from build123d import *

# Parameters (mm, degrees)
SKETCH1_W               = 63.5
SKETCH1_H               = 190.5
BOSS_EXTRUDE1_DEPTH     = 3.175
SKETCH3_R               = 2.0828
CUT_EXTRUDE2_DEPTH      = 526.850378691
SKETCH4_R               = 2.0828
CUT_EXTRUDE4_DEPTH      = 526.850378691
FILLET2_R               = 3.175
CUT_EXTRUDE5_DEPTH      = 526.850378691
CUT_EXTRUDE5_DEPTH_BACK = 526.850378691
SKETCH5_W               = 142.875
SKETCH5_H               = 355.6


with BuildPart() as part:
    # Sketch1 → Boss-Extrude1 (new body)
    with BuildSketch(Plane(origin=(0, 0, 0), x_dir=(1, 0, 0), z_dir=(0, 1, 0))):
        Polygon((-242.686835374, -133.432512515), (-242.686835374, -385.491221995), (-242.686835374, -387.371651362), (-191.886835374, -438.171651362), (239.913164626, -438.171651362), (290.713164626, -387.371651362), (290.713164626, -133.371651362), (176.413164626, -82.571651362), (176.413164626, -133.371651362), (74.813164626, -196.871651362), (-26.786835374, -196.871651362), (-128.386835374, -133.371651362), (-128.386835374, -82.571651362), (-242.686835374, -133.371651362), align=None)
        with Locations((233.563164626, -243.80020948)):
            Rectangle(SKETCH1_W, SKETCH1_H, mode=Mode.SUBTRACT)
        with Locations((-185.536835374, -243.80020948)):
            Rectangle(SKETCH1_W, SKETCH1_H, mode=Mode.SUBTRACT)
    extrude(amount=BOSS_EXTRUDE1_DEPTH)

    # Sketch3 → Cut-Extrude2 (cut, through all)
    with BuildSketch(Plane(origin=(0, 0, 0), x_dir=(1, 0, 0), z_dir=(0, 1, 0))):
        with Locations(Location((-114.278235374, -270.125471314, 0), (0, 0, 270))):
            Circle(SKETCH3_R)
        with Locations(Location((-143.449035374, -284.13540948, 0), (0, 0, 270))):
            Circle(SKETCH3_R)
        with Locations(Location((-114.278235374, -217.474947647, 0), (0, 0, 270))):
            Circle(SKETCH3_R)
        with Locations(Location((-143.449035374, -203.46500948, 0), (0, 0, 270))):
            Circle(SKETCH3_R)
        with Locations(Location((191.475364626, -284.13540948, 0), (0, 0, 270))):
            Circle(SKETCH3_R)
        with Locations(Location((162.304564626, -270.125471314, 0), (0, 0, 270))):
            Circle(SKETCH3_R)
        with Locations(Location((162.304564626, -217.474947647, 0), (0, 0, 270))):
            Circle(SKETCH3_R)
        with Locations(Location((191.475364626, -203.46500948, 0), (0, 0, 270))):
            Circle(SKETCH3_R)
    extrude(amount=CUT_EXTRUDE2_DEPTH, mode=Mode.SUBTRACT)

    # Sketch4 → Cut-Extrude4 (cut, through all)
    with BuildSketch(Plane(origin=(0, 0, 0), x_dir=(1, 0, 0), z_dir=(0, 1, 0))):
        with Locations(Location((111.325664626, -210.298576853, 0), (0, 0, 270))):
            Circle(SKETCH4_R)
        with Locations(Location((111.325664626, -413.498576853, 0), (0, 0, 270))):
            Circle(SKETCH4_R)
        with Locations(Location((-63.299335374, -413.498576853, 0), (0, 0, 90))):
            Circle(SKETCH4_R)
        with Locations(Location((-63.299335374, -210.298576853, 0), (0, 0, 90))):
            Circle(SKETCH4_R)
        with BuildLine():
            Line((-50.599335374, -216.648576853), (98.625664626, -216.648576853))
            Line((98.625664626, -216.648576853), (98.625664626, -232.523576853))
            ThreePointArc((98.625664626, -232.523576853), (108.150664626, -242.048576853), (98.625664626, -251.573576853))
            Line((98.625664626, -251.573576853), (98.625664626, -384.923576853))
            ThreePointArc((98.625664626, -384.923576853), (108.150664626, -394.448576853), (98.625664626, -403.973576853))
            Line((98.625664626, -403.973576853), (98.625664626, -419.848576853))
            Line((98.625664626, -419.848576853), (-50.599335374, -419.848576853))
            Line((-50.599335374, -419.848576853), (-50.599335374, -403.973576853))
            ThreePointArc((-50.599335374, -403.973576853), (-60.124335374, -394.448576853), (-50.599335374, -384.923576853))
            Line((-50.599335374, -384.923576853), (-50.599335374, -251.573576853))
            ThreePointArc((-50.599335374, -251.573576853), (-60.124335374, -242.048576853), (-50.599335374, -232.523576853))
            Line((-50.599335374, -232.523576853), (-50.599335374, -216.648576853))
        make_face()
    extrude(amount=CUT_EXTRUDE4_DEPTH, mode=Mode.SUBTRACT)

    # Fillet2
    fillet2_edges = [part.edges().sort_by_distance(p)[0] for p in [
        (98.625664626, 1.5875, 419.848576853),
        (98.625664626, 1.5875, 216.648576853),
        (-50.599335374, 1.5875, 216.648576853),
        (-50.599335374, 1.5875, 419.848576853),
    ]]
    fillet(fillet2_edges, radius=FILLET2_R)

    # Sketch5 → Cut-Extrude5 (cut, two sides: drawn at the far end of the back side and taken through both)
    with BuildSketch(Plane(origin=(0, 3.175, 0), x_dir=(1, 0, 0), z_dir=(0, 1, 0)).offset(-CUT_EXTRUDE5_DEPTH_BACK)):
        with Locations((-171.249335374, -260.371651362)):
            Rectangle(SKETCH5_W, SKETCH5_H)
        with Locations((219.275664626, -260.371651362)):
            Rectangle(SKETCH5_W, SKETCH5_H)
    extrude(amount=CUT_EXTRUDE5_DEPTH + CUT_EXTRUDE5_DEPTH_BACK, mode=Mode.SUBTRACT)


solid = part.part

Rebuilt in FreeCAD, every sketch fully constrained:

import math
import FreeCAD as App
import Part
import Sketcher
from FreeCAD import Vector
Q = App.Units.Quantity


def edges_at(feature, points):
    """Names of the edges that pass closest to the given points."""
    edges = feature.Shape.Edges
    near = lambda p: min(range(len(edges)), key=lambda i: edges[i].distToShape(Part.Vertex(*p))[0])
    return sorted({f"Edge{near(p) + 1}" for p in points})

doc = App.newDocument("Part")
params = doc.addObject("Spreadsheet::Sheet", "Params")
for row, (alias, value) in enumerate([
    ("sketch1_width", "17 in"),
    ("sketch1_width2", "4 in"),
    ("sketch1_height", "10 in"),
    ("sketch1_height2", "2 in"),
    ("sketch1_width3", "2.5 in"),
    ("pad1_length", "0.125 in"),
    ("sketch2_diameter", "0.164 in"),
    ("sketch3_diameter", "0.164 in"),
    ("sketch3_radius", "0.375 in"),
    ("sketch3_width", "5.875 in"),
    ("fillet_radius", "0.125 in"),
    ("sketch4_height", "14 in"),
    ("sketch4_width", "5.625 in"),
], start=1):
    params.set(f"A{row}", alias)
    params.set(f"B{row}", "=" + value)
    params.setAlias(f"B{row}", alias)

body = doc.addObject("PartDesign::Body", "Body")

# Sketch on XZ plane
sketch1 = body.newObject("Sketcher::SketchObject", "Sketch")
sketch1.AttachmentSupport = (doc.getObject("XZ_Plane"), [""])
sketch1.MapMode = "FlatFace"
sketch1.addGeometry(Part.LineSegment(Vector(-243, 387, 0), Vector(-192, 438, 0)), False)
sketch1.addGeometry(Part.LineSegment(Vector(-192, 438, 0), Vector(240, 438, 0)), False)
sketch1.addGeometry(Part.LineSegment(Vector(240, 438, 0), Vector(291, 387, 0)), False)
sketch1.addGeometry(Part.LineSegment(Vector(291, 387, 0), Vector(291, 133, 0)), False)
sketch1.addGeometry(Part.LineSegment(Vector(291, 133, 0), Vector(176, 83, 0)), False)
sketch1.addGeometry(Part.LineSegment(Vector(176, 83, 0), Vector(176, 133, 0)), False)
sketch1.addGeometry(Part.LineSegment(Vector(176, 133, 0), Vector(75, 197, 0)), False)
sketch1.addGeometry(Part.LineSegment(Vector(75, 197, 0), Vector(-27, 197, 0)), False)
sketch1.addGeometry(Part.LineSegment(Vector(-27, 197, 0), Vector(-128, 133, 0)), False)
sketch1.addGeometry(Part.LineSegment(Vector(-128, 133, 0), Vector(-128, 83, 0)), False)
sketch1.addGeometry(Part.LineSegment(Vector(-128, 83, 0), Vector(-243, 133, 0)), False)
sketch1.addGeometry(Part.LineSegment(Vector(-243, 133, 0), Vector(-243, 387, 0)), False)
sketch1.addGeometry(Part.LineSegment(Vector(-154, 339, 0), Vector(-217, 339, 0)), False)
sketch1.addGeometry(Part.LineSegment(Vector(-217, 339, 0), Vector(-217, 149, 0)), False)
sketch1.addGeometry(Part.LineSegment(Vector(-217, 149, 0), Vector(-154, 149, 0)), False)
sketch1.addGeometry(Part.LineSegment(Vector(-154, 149, 0), Vector(-154, 339, 0)), False)
sketch1.addGeometry(Part.LineSegment(Vector(265, 339, 0), Vector(202, 339, 0)), False)
sketch1.addGeometry(Part.LineSegment(Vector(202, 339, 0), Vector(202, 149, 0)), False)
sketch1.addGeometry(Part.LineSegment(Vector(202, 149, 0), Vector(265, 149, 0)), False)
sketch1.addGeometry(Part.LineSegment(Vector(265, 149, 0), Vector(265, 339, 0)), False)
sketch1.addConstraint(Sketcher.Constraint("Coincident", 0, 2, 1, 1))
sketch1.addConstraint(Sketcher.Constraint("Coincident", 1, 2, 2, 1))
sketch1.addConstraint(Sketcher.Constraint("Coincident", 2, 2, 3, 1))
sketch1.addConstraint(Sketcher.Constraint("Coincident", 3, 2, 4, 1))
sketch1.addConstraint(Sketcher.Constraint("Coincident", 4, 2, 5, 1))
sketch1.addConstraint(Sketcher.Constraint("Coincident", 5, 2, 6, 1))
sketch1.addConstraint(Sketcher.Constraint("Coincident", 6, 2, 7, 1))
sketch1.addConstraint(Sketcher.Constraint("Coincident", 7, 2, 8, 1))
sketch1.addConstraint(Sketcher.Constraint("Coincident", 8, 2, 9, 1))
sketch1.addConstraint(Sketcher.Constraint("Coincident", 9, 2, 10, 1))
sketch1.addConstraint(Sketcher.Constraint("Coincident", 10, 2, 11, 1))
sketch1.addConstraint(Sketcher.Constraint("Coincident", 11, 2, 0, 1))
sketch1.addConstraint(Sketcher.Constraint("Coincident", 12, 2, 13, 1))
sketch1.addConstraint(Sketcher.Constraint("Coincident", 13, 2, 14, 1))
sketch1.addConstraint(Sketcher.Constraint("Coincident", 14, 2, 15, 1))
sketch1.addConstraint(Sketcher.Constraint("Coincident", 15, 2, 12, 1))
sketch1.addConstraint(Sketcher.Constraint("Coincident", 16, 2, 17, 1))
sketch1.addConstraint(Sketcher.Constraint("Coincident", 17, 2, 18, 1))
sketch1.addConstraint(Sketcher.Constraint("Coincident", 18, 2, 19, 1))
sketch1.addConstraint(Sketcher.Constraint("Coincident", 19, 2, 16, 1))
sketch1.addConstraint(Sketcher.Constraint("Horizontal", 1))
sketch1.addConstraint(Sketcher.Constraint("Vertical", 3))
sketch1.addConstraint(Sketcher.Constraint("Vertical", 5))
sketch1.addConstraint(Sketcher.Constraint("Horizontal", 7))
sketch1.addConstraint(Sketcher.Constraint("Vertical", 9))
sketch1.addConstraint(Sketcher.Constraint("Vertical", 11))
sketch1.addConstraint(Sketcher.Constraint("Horizontal", 12))
sketch1.addConstraint(Sketcher.Constraint("Vertical", 13))
sketch1.addConstraint(Sketcher.Constraint("Horizontal", 14))
sketch1.addConstraint(Sketcher.Constraint("Vertical", 15))
sketch1.addConstraint(Sketcher.Constraint("Horizontal", 16))
sketch1.addConstraint(Sketcher.Constraint("Vertical", 17))
sketch1.addConstraint(Sketcher.Constraint("Horizontal", 18))
sketch1.addConstraint(Sketcher.Constraint("Vertical", 19))
sketch1.addConstraint(Sketcher.Constraint("Perpendicular", 0, 2))
sketch1.addConstraint(Sketcher.Constraint("Horizontal", 3, 2, 5, 2))
sketch1.addConstraint(Sketcher.Constraint("Horizontal", 5, 2, 8, 2))
sketch1.addConstraint(Sketcher.Constraint("Horizontal", 4, 2, 9, 2))
sketch1.addConstraint(Sketcher.Constraint("Horizontal", 8, 2, 10, 2))
sketch1.addConstraint(Sketcher.Constraint("Horizontal", 2, 2, 11, 2))
sketch1.addConstraint(Sketcher.Constraint("Horizontal", 15, 2, 16, 2))
sketch1.addConstraint(Sketcher.Constraint("Horizontal", 14, 2, 17, 2))
sketch1.addConstraint(Sketcher.Constraint("Equal", 14, 16))
sketch1.addConstraint(Sketcher.Constraint("Equal", 0, 2))
sketch1.addConstraint(Sketcher.Constraint("Equal", 6, 8))
sketch1.addConstraint(Sketcher.Constraint("Equal", 4, 10))
sketch1.addConstraint(Sketcher.Constraint("DistanceX", 1, 1, 1, 2, Q("17 in")))
sketch1.addConstraint(Sketcher.Constraint("DistanceX", 7, 2, 7, 1, Q("4 in")))
sketch1.addConstraint(Sketcher.Constraint("DistanceY", 3, 2, 3, 1, Q("10 in")))
sketch1.addConstraint(Sketcher.Constraint("DistanceY", 5, 1, 5, 2, Q("2 in")))
sketch1.addConstraint(Sketcher.Constraint("DistanceX", 12, 2, 12, 1, Q("2.5 in")))
sketch1.addConstraint(Sketcher.Constraint("DistanceY", 13, 2, 13, 1, Q("7.5 in")))
sketch1.addConstraint(Sketcher.Constraint("DistanceX", 1, 2, 2, 2, Q("2 in")))
sketch1.addConstraint(Sketcher.Constraint("DistanceX", 6, 2, 5, 2, Q("4 in")))
sketch1.addConstraint(Sketcher.Constraint("DistanceX", 11, 2, 12, 2, Q("1 in")))
sketch1.addConstraint(Sketcher.Constraint("DistanceX", 6, 2, 16, 2, Q("5 in")))
sketch1.addConstraint(Sketcher.Constraint("DistanceY", 5, 2, 6, 2, Q("2.5 in")))
sketch1.addConstraint(Sketcher.Constraint("DistanceX", 0, 2, -1, 1, Q("7.5545998 in")))
sketch1.addConstraint(Sketcher.Constraint("DistanceY", -1, 1, 0, 2, Q("438.171651 mm")))
sketch1.addConstraint(Sketcher.Constraint("DistanceY", -1, 1, 12, 2, Q("339.050209 mm")))
sketch1.setExpression("Constraints[46]", "Params.sketch1_width")
sketch1.setExpression("Constraints[47]", "Params.sketch1_width2")
sketch1.setExpression("Constraints[48]", "Params.sketch1_height")
sketch1.setExpression("Constraints[49]", "Params.sketch1_height2")
sketch1.setExpression("Constraints[50]", "Params.sketch1_width3")
pad1 = body.newObject("PartDesign::Pad", "Pad")
pad1.Profile = sketch1
pad1.setExpression("Length", "Params.pad1_length")
pad1.Reversed = True

# Sketch on XZ plane
sketch2 = body.newObject("Sketcher::SketchObject", "Sketch001")
sketch2.AttachmentSupport = (doc.getObject("XZ_Plane"), [""])
sketch2.MapMode = "FlatFace"
sketch2.addGeometry(Part.Circle(Vector(-114.3, 270.1, 0), Vector(0, 0, 1), 2.1), False)
sketch2.addGeometry(Part.Circle(Vector(-143.4, 284.1, 0), Vector(0, 0, 1), 2.1), False)
sketch2.addGeometry(Part.Circle(Vector(-114.3, 217.5, 0), Vector(0, 0, 1), 2.1), False)
sketch2.addGeometry(Part.Circle(Vector(-143.4, 203.5, 0), Vector(0, 0, 1), 2.1), False)
sketch2.addGeometry(Part.Circle(Vector(191.5, 284.1, 0), Vector(0, 0, 1), 2.1), False)
sketch2.addGeometry(Part.Circle(Vector(162.3, 270.1, 0), Vector(0, 0, 1), 2.1), False)
sketch2.addGeometry(Part.Circle(Vector(162.3, 217.5, 0), Vector(0, 0, 1), 2.1), False)
sketch2.addGeometry(Part.Circle(Vector(191.5, 203.5, 0), Vector(0, 0, 1), 2.1), False)
sketch2.addConstraint(Sketcher.Constraint("Equal", 0, 1))
sketch2.addConstraint(Sketcher.Constraint("Equal", 1, 2))
sketch2.addConstraint(Sketcher.Constraint("Equal", 2, 3))
sketch2.addConstraint(Sketcher.Constraint("Equal", 3, 4))
sketch2.addConstraint(Sketcher.Constraint("Equal", 4, 5))
sketch2.addConstraint(Sketcher.Constraint("Equal", 5, 6))
sketch2.addConstraint(Sketcher.Constraint("Equal", 6, 7))
sketch2.addConstraint(Sketcher.Constraint("Horizontal", 1, 3, 4, 3))
sketch2.addConstraint(Sketcher.Constraint("Horizontal", 0, 3, 5, 3))
sketch2.addConstraint(Sketcher.Constraint("Horizontal", 2, 3, 6, 3))
sketch2.addConstraint(Sketcher.Constraint("Horizontal", 3, 3, 7, 3))
sketch2.addConstraint(Sketcher.Constraint("Vertical", 0, 3, 2, 3))
sketch2.addConstraint(Sketcher.Constraint("Vertical", 1, 3, 3, 3))
sketch2.addConstraint(Sketcher.Constraint("Vertical", 5, 3, 6, 3))
sketch2.addConstraint(Sketcher.Constraint("Vertical", 4, 3, 7, 3))
sketch2.addConstraint(Sketcher.Constraint("Diameter", 0, Q("0.164 in")))
sketch2.addConstraint(Sketcher.Constraint("DistanceY", 3, 3, 1, 3, Q("3.176 in")))
sketch2.addConstraint(Sketcher.Constraint("DistanceX", 1, 3, 4, 3, Q("13.186 in")))
sketch2.addConstraint(Sketcher.Constraint("DistanceX", 1, 3, -1, 1, Q("5.6475998 in")))
sketch2.addConstraint(Sketcher.Constraint("DistanceX", 1, 3, 0, 3, Q("29.1708 mm")))
sketch2.addConstraint(Sketcher.Constraint("DistanceX", 5, 3, 4, 3, Q("29.1708 mm")))
sketch2.addConstraint(Sketcher.Constraint("DistanceY", -1, 1, 0, 3, Q("270.125471 mm")))
sketch2.addConstraint(Sketcher.Constraint("DistanceY", -1, 1, 1, 3, Q("284.135409 mm")))
sketch2.addConstraint(Sketcher.Constraint("DistanceY", 2, 3, 1, 3, Q("66.660462 mm")))
sketch2.setExpression("Constraints[15]", "Params.sketch2_diameter")
pocket1 = body.newObject("PartDesign::Pocket", "Pocket")
pocket1.Profile = sketch2
pocket1.Type = "ThroughAll"

# Sketch on XZ plane
sketch3 = body.newObject("Sketcher::SketchObject", "Sketch002")
sketch3.AttachmentSupport = (doc.getObject("XZ_Plane"), [""])
sketch3.MapMode = "FlatFace"
sketch3.addGeometry(Part.Circle(Vector(111.3, 210.3, 0), Vector(0, 0, 1), 2.1), False)
sketch3.addGeometry(Part.Circle(Vector(111.3, 413.5, 0), Vector(0, 0, 1), 2.1), False)
sketch3.addGeometry(Part.Circle(Vector(-63.3, 413.5, 0), Vector(0, 0, 1), 2.1), False)
sketch3.addGeometry(Part.Circle(Vector(-63.3, 210.3, 0), Vector(0, 0, 1), 2.1), False)
sketch3.addGeometry(Part.LineSegment(Vector(98.6, 216.6, 0), Vector(-50.6, 216.6, 0)), False)
sketch3.addGeometry(Part.LineSegment(Vector(-50.6, 216.6, 0), Vector(-50.6, 232.5, 0)), False)
sketch3.addGeometry(Part.ArcOfCircle(Part.Circle(Vector(-50.6, 242, 0), Vector(0, 0, 1), 9.5), math.radians(90), math.radians(270)), False)
sketch3.addGeometry(Part.LineSegment(Vector(-50.6, 251.6, 0), Vector(-50.6, 384.9, 0)), False)
sketch3.addGeometry(Part.ArcOfCircle(Part.Circle(Vector(-50.6, 394.4, 0), Vector(0, 0, 1), 9.5), math.radians(90), math.radians(270)), False)
sketch3.addGeometry(Part.LineSegment(Vector(-50.6, 404, 0), Vector(-50.6, 419.8, 0)), False)
sketch3.addGeometry(Part.LineSegment(Vector(-50.6, 419.8, 0), Vector(98.6, 419.8, 0)), False)
sketch3.addGeometry(Part.LineSegment(Vector(98.6, 419.8, 0), Vector(98.6, 404, 0)), False)
sketch3.addGeometry(Part.ArcOfCircle(Part.Circle(Vector(98.6, 394.4, 0), Vector(0, 0, 1), 9.5), math.radians(-90), math.radians(90)), False)
sketch3.addGeometry(Part.LineSegment(Vector(98.6, 384.9, 0), Vector(98.6, 251.6, 0)), False)
sketch3.addGeometry(Part.ArcOfCircle(Part.Circle(Vector(98.6, 242, 0), Vector(0, 0, 1), 9.5), math.radians(-90), math.radians(90)), False)
sketch3.addGeometry(Part.LineSegment(Vector(98.6, 232.5, 0), Vector(98.6, 216.6, 0)), False)
sketch3.addConstraint(Sketcher.Constraint("Coincident", 4, 2, 5, 1))
sketch3.addConstraint(Sketcher.Constraint("Coincident", 5, 2, 6, 2))
sketch3.addConstraint(Sketcher.Constraint("Coincident", 6, 1, 7, 1))
sketch3.addConstraint(Sketcher.Constraint("Coincident", 7, 2, 8, 2))
sketch3.addConstraint(Sketcher.Constraint("Coincident", 8, 1, 9, 1))
sketch3.addConstraint(Sketcher.Constraint("Coincident", 9, 2, 10, 1))
sketch3.addConstraint(Sketcher.Constraint("Coincident", 10, 2, 11, 1))
sketch3.addConstraint(Sketcher.Constraint("Coincident", 11, 2, 12, 2))
sketch3.addConstraint(Sketcher.Constraint("Coincident", 12, 1, 13, 1))
sketch3.addConstraint(Sketcher.Constraint("Coincident", 13, 2, 14, 2))
sketch3.addConstraint(Sketcher.Constraint("Coincident", 14, 1, 15, 1))
sketch3.addConstraint(Sketcher.Constraint("Coincident", 15, 2, 4, 1))
sketch3.addConstraint(Sketcher.Constraint("Horizontal", 4))
sketch3.addConstraint(Sketcher.Constraint("Vertical", 5))
sketch3.addConstraint(Sketcher.Constraint("Vertical", 7))
sketch3.addConstraint(Sketcher.Constraint("Vertical", 9))
sketch3.addConstraint(Sketcher.Constraint("Horizontal", 10))
sketch3.addConstraint(Sketcher.Constraint("Vertical", 11))
sketch3.addConstraint(Sketcher.Constraint("Vertical", 13))
sketch3.addConstraint(Sketcher.Constraint("Vertical", 15))
sketch3.addConstraint(Sketcher.Constraint("Equal", 0, 1))
sketch3.addConstraint(Sketcher.Constraint("Equal", 1, 2))
sketch3.addConstraint(Sketcher.Constraint("Equal", 2, 3))
sketch3.addConstraint(Sketcher.Constraint("Equal", 6, 8))
sketch3.addConstraint(Sketcher.Constraint("Equal", 8, 12))
sketch3.addConstraint(Sketcher.Constraint("Equal", 12, 14))
sketch3.addConstraint(Sketcher.Constraint("Horizontal", 1, 3, 2, 3))
sketch3.addConstraint(Sketcher.Constraint("Horizontal", 0, 3, 3, 3))
sketch3.addConstraint(Sketcher.Constraint("Horizontal", 8, 3, 12, 3))
sketch3.addConstraint(Sketcher.Constraint("Horizontal", 6, 3, 14, 3))
sketch3.addConstraint(Sketcher.Constraint("Vertical", 0, 3, 1, 3))
sketch3.addConstraint(Sketcher.Constraint("Vertical", 2, 3, 3, 3))
sketch3.addConstraint(Sketcher.Constraint("Vertical", 6, 3, 8, 3))
sketch3.addConstraint(Sketcher.Constraint("Vertical", 12, 3, 14, 3))
sketch3.addConstraint(Sketcher.Constraint("Vertical", 8, 3, 4, 2))
sketch3.addConstraint(Sketcher.Constraint("Vertical", 5, 2, 6, 1))
sketch3.addConstraint(Sketcher.Constraint("Vertical", 7, 2, 8, 1))
sketch3.addConstraint(Sketcher.Constraint("Vertical", 14, 3, 10, 2))
sketch3.addConstraint(Sketcher.Constraint("Vertical", 11, 2, 12, 1))
sketch3.addConstraint(Sketcher.Constraint("Vertical", 13, 2, 14, 1))
sketch3.addConstraint(Sketcher.Constraint("Equal", 5, 9))
sketch3.addConstraint(Sketcher.Constraint("Diameter", 0, Q("0.164 in")))
sketch3.addConstraint(Sketcher.Constraint("Radius", 6, Q("0.375 in")))
sketch3.addConstraint(Sketcher.Constraint("DistanceY", 0, 3, 1, 3, Q("8 in")))
sketch3.addConstraint(Sketcher.Constraint("DistanceY", 6, 3, 8, 3, Q("6 in")))
sketch3.addConstraint(Sketcher.Constraint("DistanceY", 4, 2, 6, 3, Q("1 in")))
sketch3.addConstraint(Sketcher.Constraint("DistanceX", 3, 3, 6, 3, Q("0.5 in")))
sketch3.addConstraint(Sketcher.Constraint("DistanceX", 12, 3, 1, 3, Q("0.5 in")))
sketch3.addConstraint(Sketcher.Constraint("DistanceX", 4, 2, 4, 1, Q("5.875 in")))
sketch3.addConstraint(Sketcher.Constraint("DistanceY", 3, 3, 6, 3, Q("1.25 in")))
sketch3.addConstraint(Sketcher.Constraint("DistanceX", -1, 1, 0, 3, Q("4.3829002 in")))
sketch3.addConstraint(Sketcher.Constraint("DistanceY", -1, 1, 0, 3, Q("210.298577 mm")))
sketch3.setExpression("Constraints[41]", "Params.sketch3_diameter")
sketch3.setExpression("Constraints[42]", "Params.sketch3_radius")
sketch3.setExpression("Constraints[48]", "Params.sketch3_width")
pocket2 = body.newObject("PartDesign::Pocket", "Pocket001")
pocket2.Profile = sketch3
pocket2.Type = "ThroughAll"
doc.recompute()

fillet = body.newObject("PartDesign::Fillet", "Fillet")
fillet.Base = (pocket2, edges_at(pocket2, [
    (98.626, 1.587, 419.849),
    (98.626, 1.587, 216.649),
    (-50.599, 1.587, 216.649),
    (-50.599, 1.587, 419.849),
]))
fillet.setExpression("Radius", "Params.fillet_radius")

# Sketch on XZ plane
sketch4 = body.newObject("Sketcher::SketchObject", "Sketch003")
sketch4.AttachmentSupport = (doc.getObject("XZ_Plane"), [""])
sketch4.MapMode = "FlatFace"
sketch4.AttachmentOffset = App.Placement(Vector(0, 0, -0.125 * 25.4), App.Rotation())
sketch4.addGeometry(Part.LineSegment(Vector(-243, 83, 0), Vector(-243, 438, 0)), False)
sketch4.addGeometry(Part.LineSegment(Vector(-243, 438, 0), Vector(-100, 438, 0)), False)
sketch4.addGeometry(Part.LineSegment(Vector(-100, 438, 0), Vector(-100, 83, 0)), False)
sketch4.addGeometry(Part.LineSegment(Vector(-100, 83, 0), Vector(-243, 83, 0)), False)
sketch4.addGeometry(Part.LineSegment(Vector(148, 83, 0), Vector(148, 438, 0)), False)
sketch4.addGeometry(Part.LineSegment(Vector(148, 438, 0), Vector(291, 438, 0)), False)
sketch4.addGeometry(Part.LineSegment(Vector(291, 438, 0), Vector(291, 83, 0)), False)
sketch4.addGeometry(Part.LineSegment(Vector(291, 83, 0), Vector(148, 83, 0)), False)
sketch4.addConstraint(Sketcher.Constraint("Coincident", 0, 2, 1, 1))
sketch4.addConstraint(Sketcher.Constraint("Coincident", 1, 2, 2, 1))
sketch4.addConstraint(Sketcher.Constraint("Coincident", 2, 2, 3, 1))
sketch4.addConstraint(Sketcher.Constraint("Coincident", 3, 2, 0, 1))
sketch4.addConstraint(Sketcher.Constraint("Coincident", 4, 2, 5, 1))
sketch4.addConstraint(Sketcher.Constraint("Coincident", 5, 2, 6, 1))
sketch4.addConstraint(Sketcher.Constraint("Coincident", 6, 2, 7, 1))
sketch4.addConstraint(Sketcher.Constraint("Coincident", 7, 2, 4, 1))
sketch4.addConstraint(Sketcher.Constraint("Vertical", 0))
sketch4.addConstraint(Sketcher.Constraint("Horizontal", 1))
sketch4.addConstraint(Sketcher.Constraint("Vertical", 2))
sketch4.addConstraint(Sketcher.Constraint("Horizontal", 3))
sketch4.addConstraint(Sketcher.Constraint("Vertical", 4))
sketch4.addConstraint(Sketcher.Constraint("Horizontal", 5))
sketch4.addConstraint(Sketcher.Constraint("Vertical", 6))
sketch4.addConstraint(Sketcher.Constraint("Horizontal", 7))
sketch4.addConstraint(Sketcher.Constraint("Horizontal", 1, 2, 4, 2))
sketch4.addConstraint(Sketcher.Constraint("Horizontal", 3, 2, 6, 2))
sketch4.addConstraint(Sketcher.Constraint("Equal", 3, 5))
sketch4.addConstraint(Sketcher.Constraint("DistanceY", 0, 1, 0, 2, Q("14 in")))
sketch4.addConstraint(Sketcher.Constraint("DistanceX", 0, 2, 5, 2, Q("21 in")))
sketch4.addConstraint(Sketcher.Constraint("DistanceX", 1, 1, 1, 2, Q("5.625 in")))
sketch4.addConstraint(Sketcher.Constraint("DistanceX", 0, 2, -1, 1, Q("9.5545998 in")))
sketch4.addConstraint(Sketcher.Constraint("DistanceY", -1, 1, 0, 2, Q("438.171651 mm")))
sketch4.setExpression("Constraints[19]", "Params.sketch4_height")
sketch4.setExpression("Constraints[21]", "Params.sketch4_width")
pocket3 = body.newObject("PartDesign::Pocket", "Pocket002")
pocket3.Profile = sketch4
pocket3.Type = "ThroughAll"
pocket3.Midplane = True

doc.recompute()
